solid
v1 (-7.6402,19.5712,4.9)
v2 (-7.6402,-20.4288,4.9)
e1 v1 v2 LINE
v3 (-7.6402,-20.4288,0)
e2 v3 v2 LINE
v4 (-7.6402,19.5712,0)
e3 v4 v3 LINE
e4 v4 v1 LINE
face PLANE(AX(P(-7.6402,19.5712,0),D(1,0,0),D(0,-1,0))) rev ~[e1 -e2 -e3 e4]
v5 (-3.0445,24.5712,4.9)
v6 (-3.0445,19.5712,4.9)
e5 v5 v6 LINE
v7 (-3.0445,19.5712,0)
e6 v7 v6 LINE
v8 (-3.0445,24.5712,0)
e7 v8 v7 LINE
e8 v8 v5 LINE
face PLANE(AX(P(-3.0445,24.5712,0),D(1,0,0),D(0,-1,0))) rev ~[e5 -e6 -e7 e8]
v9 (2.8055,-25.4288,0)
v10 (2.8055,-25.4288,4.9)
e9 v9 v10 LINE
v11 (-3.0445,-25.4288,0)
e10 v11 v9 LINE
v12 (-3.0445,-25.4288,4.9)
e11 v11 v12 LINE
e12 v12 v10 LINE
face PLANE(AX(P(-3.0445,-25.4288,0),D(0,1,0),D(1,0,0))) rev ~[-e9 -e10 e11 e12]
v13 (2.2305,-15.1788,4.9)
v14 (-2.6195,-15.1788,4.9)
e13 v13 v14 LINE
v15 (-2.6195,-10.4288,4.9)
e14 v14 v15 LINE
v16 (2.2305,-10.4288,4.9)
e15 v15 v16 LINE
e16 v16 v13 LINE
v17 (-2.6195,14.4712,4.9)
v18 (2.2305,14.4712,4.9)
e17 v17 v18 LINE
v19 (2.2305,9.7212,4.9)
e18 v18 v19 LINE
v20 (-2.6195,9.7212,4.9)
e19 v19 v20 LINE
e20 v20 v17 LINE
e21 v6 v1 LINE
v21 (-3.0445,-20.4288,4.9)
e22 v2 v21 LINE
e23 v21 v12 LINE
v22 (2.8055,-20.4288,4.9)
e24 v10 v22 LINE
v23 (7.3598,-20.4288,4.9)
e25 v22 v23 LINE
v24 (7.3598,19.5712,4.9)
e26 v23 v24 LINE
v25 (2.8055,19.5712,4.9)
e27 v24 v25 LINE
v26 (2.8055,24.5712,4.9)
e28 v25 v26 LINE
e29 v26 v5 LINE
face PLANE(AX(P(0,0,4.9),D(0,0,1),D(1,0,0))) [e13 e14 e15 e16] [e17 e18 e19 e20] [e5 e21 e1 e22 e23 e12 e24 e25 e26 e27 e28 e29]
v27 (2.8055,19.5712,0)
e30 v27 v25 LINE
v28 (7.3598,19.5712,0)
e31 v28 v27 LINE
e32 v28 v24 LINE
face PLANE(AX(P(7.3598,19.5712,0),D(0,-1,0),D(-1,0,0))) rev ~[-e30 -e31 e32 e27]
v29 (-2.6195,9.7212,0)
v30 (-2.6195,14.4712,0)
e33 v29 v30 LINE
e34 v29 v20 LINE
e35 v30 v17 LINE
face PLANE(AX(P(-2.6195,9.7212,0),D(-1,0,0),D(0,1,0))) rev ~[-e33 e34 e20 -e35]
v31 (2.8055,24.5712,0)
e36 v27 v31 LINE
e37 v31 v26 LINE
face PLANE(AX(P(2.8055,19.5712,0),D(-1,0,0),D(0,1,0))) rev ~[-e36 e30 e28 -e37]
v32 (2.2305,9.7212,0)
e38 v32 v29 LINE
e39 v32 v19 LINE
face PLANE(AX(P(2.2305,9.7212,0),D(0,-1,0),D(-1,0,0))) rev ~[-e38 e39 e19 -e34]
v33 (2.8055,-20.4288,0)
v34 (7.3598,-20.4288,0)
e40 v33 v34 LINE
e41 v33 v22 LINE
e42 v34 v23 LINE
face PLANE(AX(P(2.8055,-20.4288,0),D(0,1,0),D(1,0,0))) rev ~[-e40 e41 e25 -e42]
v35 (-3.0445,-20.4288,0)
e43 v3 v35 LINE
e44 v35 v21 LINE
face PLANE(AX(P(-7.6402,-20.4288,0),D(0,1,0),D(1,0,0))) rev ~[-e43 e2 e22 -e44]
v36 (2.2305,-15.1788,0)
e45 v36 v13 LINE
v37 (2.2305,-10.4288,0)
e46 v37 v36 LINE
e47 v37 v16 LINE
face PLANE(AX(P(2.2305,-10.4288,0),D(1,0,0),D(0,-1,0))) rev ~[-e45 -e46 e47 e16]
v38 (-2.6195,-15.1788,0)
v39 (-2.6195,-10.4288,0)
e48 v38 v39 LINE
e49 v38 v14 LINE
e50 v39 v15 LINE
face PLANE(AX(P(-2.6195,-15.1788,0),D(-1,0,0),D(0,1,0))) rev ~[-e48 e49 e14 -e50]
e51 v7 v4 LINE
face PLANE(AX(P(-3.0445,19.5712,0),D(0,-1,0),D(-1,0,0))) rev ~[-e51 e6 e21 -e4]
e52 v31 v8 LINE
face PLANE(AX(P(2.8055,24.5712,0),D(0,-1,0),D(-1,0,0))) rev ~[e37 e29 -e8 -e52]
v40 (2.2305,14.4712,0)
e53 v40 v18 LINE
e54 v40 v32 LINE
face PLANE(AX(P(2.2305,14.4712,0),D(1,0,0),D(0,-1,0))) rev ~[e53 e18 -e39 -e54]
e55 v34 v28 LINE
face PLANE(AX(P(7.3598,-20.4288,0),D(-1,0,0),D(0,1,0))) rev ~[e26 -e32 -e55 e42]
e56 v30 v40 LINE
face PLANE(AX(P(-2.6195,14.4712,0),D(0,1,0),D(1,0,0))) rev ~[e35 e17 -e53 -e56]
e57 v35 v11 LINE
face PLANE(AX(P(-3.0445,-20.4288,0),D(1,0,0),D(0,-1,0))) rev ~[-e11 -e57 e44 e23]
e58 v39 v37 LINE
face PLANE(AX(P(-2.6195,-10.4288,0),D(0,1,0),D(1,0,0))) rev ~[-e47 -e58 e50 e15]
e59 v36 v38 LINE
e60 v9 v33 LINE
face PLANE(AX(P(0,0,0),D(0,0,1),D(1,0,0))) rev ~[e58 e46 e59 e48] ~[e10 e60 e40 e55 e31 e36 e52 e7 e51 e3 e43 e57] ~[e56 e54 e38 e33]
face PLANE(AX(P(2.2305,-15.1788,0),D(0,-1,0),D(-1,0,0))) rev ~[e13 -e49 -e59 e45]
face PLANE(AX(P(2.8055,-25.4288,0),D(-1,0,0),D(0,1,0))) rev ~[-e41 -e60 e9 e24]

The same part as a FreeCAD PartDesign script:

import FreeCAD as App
import Part
import Sketcher

V = App.Vector


def add_polygon(sketch, points):
    """Adds a closed chain of lines whose ends are joined by coincident constraints."""
    first, n = sketch.GeometryCount, len(points)
    for a, b in zip(points, points[1:] + points[:1]):
        sketch.addGeometry(Part.LineSegment(App.Vector(*a, 0), App.Vector(*b, 0)), False)
    for i in range(n):
        sketch.addConstraint(Sketcher.Constraint("Coincident", first + i, 2, first + (i + 1) % n, 1))

doc = App.newDocument("Part")
params = doc.addObject("Spreadsheet::Sheet", "Params")
for row, (alias, value) in enumerate([
    ("sketch1_height", "40 mm"),
    ("sketch1_height2", "5 mm"),
    ("sketch1_width", "5.85 mm"),
    ("sketch1_width2", "4.85 mm"),
    ("sketch1_height3", "4.75 mm"),
    ("pad1_length", "4.9 mm"),
], start=1):
    params.set(f"A{row}", alias)
    params.set(f"B{row}", "=" + value)
    params.setAlias(f"B{row}", alias)

body = doc.addObject("PartDesign::Body", "Body")

# Sketch on XY plane
sketch1 = doc.addObject("Sketcher::SketchObject", "Sketch")
body.addObject(sketch1)
sketch1.AttachmentSupport = (doc.XY_Plane, [""])
sketch1.MapMode = "FlatFace"
add_polygon(sketch1, [(2.8055, -20.4288), (7.3598, -20.4288), (7.3598, 19.5712), (2.8055, 19.5712), (2.8055, 24.5712), (-3.0445, 24.5712), (-3.0445, 19.5712), (-7.6402, 19.5712), (-7.6402, -20.4288), (-3.0445, -20.4288), (-3.0445, -25.4288), (2.8055, -25.4288)])  # lines 0-11
add_polygon(sketch1, [(-2.6195, -10.4288), (2.2305, -10.4288), (2.2305, -15.1788), (-2.6195, -15.1788)])  # lines 12-15
add_polygon(sketch1, [(-2.6195, 14.4712), (2.2305, 14.4712), (2.2305, 9.7212), (-2.6195, 9.7212)])  # lines 16-19
sketch1.addConstraint(Sketcher.Constraint("Horizontal", 0))
sketch1.addConstraint(Sketcher.Constraint("Vertical", 1))
sketch1.addConstraint(Sketcher.Constraint("Horizontal", 2))
sketch1.addConstraint(Sketcher.Constraint("Vertical", 3))
sketch1.addConstraint(Sketcher.Constraint("Horizontal", 4))
sketch1.addConstraint(Sketcher.Constraint("Vertical", 5))
sketch1.addConstraint(Sketcher.Constraint("Horizontal", 6))
sketch1.addConstraint(Sketcher.Constraint("Vertical", 7))
sketch1.addConstraint(Sketcher.Constraint("Horizontal", 8))
sketch1.addConstraint(Sketcher.Constraint("Vertical", 9))
sketch1.addConstraint(Sketcher.Constraint("Horizontal", 10))
sketch1.addConstraint(Sketcher.Constraint("Vertical", 11))
sketch1.addConstraint(Sketcher.Constraint("Horizontal", 12))
sketch1.addConstraint(Sketcher.Constraint("Vertical", 13))
sketch1.addConstraint(Sketcher.Constraint("Horizontal", 14))
sketch1.addConstraint(Sketcher.Constraint("Vertical", 15))
sketch1.addConstraint(Sketcher.Constraint("Horizontal", 16))
sketch1.addConstraint(Sketcher.Constraint("Vertical", 17))
sketch1.addConstraint(Sketcher.Constraint("Horizontal", 18))
sketch1.addConstraint(Sketcher.Constraint("Vertical", 19))
sketch1.addConstraint(Sketcher.Constraint("Horizontal", 2, 2, 5, 2))
sketch1.addConstraint(Sketcher.Constraint("Horizontal", 0, 2, 7, 2))
sketch1.addConstraint(Sketcher.Constraint("Vertical", 5, 2, 8, 2))
sketch1.addConstraint(Sketcher.Constraint("Vertical", 3, 2, 10, 2))
sketch1.addConstraint(Sketcher.Constraint("Vertical", 13, 2, 16, 2))
sketch1.addConstraint(Sketcher.Constraint("Vertical", 15, 2, 18, 2))
sketch1.addConstraint(Sketcher.Constraint("Equal", 5, 9))
sketch1.addConstraint(Sketcher.Constraint("Equal", 15, 17))
sketch1.addConstraint(Sketcher.Constraint("DistanceY", 1, 1, 1, 2, 40.0))
sketch1.addConstraint(Sketcher.Constraint("DistanceY", 3, 1, 3, 2, 5.0))
sketch1.addConstraint(Sketcher.Constraint("DistanceX", 6, 2, 1, 2, 15.0))
sketch1.addConstraint(Sketcher.Constraint("DistanceY", 11, 2, 12, 2, 10.0))
sketch1.addConstraint(Sketcher.Constraint("DistanceX", 4, 2, 4, 1, 5.85))
sketch1.addConstraint(Sketcher.Constraint("DistanceX", 12, 1, 12, 2, 4.85))
sketch1.addConstraint(Sketcher.Constraint("DistanceY", 13, 2, 13, 1, 4.75))
sketch1.addConstraint(Sketcher.Constraint("DistanceY", 16, 2, 2, 2, 5.1))
sketch1.addConstraint(Sketcher.Constraint("DistanceX", 0, 1, 0, 2, 4.5543))
sketch1.addConstraint(Sketcher.Constraint("DistanceX", 12, 2, 11, 2, 0.575))
sketch1.addConstraint(Sketcher.Constraint("DistanceX", -1, 1, 0, 2, 7.3598))
sketch1.addConstraint(Sketcher.Constraint("DistanceY", 0, 2, -1, 1, 20.4288))
sketch1.setExpression("Constraints[48]", "Params.sketch1_height")
sketch1.setExpression("Constraints[49]", "Params.sketch1_height2")
sketch1.setExpression("Constraints[52]", "Params.sketch1_width")
sketch1.setExpression("Constraints[53]", "Params.sketch1_width2")
sketch1.setExpression("Constraints[54]", "Params.sketch1_height3")
pad1 = doc.addObject("PartDesign::Pad", "Pad")
body.addObject(pad1)
pad1.Profile = sketch1
pad1.setExpression("Length", "Params.pad1_length")

doc.recompute()
